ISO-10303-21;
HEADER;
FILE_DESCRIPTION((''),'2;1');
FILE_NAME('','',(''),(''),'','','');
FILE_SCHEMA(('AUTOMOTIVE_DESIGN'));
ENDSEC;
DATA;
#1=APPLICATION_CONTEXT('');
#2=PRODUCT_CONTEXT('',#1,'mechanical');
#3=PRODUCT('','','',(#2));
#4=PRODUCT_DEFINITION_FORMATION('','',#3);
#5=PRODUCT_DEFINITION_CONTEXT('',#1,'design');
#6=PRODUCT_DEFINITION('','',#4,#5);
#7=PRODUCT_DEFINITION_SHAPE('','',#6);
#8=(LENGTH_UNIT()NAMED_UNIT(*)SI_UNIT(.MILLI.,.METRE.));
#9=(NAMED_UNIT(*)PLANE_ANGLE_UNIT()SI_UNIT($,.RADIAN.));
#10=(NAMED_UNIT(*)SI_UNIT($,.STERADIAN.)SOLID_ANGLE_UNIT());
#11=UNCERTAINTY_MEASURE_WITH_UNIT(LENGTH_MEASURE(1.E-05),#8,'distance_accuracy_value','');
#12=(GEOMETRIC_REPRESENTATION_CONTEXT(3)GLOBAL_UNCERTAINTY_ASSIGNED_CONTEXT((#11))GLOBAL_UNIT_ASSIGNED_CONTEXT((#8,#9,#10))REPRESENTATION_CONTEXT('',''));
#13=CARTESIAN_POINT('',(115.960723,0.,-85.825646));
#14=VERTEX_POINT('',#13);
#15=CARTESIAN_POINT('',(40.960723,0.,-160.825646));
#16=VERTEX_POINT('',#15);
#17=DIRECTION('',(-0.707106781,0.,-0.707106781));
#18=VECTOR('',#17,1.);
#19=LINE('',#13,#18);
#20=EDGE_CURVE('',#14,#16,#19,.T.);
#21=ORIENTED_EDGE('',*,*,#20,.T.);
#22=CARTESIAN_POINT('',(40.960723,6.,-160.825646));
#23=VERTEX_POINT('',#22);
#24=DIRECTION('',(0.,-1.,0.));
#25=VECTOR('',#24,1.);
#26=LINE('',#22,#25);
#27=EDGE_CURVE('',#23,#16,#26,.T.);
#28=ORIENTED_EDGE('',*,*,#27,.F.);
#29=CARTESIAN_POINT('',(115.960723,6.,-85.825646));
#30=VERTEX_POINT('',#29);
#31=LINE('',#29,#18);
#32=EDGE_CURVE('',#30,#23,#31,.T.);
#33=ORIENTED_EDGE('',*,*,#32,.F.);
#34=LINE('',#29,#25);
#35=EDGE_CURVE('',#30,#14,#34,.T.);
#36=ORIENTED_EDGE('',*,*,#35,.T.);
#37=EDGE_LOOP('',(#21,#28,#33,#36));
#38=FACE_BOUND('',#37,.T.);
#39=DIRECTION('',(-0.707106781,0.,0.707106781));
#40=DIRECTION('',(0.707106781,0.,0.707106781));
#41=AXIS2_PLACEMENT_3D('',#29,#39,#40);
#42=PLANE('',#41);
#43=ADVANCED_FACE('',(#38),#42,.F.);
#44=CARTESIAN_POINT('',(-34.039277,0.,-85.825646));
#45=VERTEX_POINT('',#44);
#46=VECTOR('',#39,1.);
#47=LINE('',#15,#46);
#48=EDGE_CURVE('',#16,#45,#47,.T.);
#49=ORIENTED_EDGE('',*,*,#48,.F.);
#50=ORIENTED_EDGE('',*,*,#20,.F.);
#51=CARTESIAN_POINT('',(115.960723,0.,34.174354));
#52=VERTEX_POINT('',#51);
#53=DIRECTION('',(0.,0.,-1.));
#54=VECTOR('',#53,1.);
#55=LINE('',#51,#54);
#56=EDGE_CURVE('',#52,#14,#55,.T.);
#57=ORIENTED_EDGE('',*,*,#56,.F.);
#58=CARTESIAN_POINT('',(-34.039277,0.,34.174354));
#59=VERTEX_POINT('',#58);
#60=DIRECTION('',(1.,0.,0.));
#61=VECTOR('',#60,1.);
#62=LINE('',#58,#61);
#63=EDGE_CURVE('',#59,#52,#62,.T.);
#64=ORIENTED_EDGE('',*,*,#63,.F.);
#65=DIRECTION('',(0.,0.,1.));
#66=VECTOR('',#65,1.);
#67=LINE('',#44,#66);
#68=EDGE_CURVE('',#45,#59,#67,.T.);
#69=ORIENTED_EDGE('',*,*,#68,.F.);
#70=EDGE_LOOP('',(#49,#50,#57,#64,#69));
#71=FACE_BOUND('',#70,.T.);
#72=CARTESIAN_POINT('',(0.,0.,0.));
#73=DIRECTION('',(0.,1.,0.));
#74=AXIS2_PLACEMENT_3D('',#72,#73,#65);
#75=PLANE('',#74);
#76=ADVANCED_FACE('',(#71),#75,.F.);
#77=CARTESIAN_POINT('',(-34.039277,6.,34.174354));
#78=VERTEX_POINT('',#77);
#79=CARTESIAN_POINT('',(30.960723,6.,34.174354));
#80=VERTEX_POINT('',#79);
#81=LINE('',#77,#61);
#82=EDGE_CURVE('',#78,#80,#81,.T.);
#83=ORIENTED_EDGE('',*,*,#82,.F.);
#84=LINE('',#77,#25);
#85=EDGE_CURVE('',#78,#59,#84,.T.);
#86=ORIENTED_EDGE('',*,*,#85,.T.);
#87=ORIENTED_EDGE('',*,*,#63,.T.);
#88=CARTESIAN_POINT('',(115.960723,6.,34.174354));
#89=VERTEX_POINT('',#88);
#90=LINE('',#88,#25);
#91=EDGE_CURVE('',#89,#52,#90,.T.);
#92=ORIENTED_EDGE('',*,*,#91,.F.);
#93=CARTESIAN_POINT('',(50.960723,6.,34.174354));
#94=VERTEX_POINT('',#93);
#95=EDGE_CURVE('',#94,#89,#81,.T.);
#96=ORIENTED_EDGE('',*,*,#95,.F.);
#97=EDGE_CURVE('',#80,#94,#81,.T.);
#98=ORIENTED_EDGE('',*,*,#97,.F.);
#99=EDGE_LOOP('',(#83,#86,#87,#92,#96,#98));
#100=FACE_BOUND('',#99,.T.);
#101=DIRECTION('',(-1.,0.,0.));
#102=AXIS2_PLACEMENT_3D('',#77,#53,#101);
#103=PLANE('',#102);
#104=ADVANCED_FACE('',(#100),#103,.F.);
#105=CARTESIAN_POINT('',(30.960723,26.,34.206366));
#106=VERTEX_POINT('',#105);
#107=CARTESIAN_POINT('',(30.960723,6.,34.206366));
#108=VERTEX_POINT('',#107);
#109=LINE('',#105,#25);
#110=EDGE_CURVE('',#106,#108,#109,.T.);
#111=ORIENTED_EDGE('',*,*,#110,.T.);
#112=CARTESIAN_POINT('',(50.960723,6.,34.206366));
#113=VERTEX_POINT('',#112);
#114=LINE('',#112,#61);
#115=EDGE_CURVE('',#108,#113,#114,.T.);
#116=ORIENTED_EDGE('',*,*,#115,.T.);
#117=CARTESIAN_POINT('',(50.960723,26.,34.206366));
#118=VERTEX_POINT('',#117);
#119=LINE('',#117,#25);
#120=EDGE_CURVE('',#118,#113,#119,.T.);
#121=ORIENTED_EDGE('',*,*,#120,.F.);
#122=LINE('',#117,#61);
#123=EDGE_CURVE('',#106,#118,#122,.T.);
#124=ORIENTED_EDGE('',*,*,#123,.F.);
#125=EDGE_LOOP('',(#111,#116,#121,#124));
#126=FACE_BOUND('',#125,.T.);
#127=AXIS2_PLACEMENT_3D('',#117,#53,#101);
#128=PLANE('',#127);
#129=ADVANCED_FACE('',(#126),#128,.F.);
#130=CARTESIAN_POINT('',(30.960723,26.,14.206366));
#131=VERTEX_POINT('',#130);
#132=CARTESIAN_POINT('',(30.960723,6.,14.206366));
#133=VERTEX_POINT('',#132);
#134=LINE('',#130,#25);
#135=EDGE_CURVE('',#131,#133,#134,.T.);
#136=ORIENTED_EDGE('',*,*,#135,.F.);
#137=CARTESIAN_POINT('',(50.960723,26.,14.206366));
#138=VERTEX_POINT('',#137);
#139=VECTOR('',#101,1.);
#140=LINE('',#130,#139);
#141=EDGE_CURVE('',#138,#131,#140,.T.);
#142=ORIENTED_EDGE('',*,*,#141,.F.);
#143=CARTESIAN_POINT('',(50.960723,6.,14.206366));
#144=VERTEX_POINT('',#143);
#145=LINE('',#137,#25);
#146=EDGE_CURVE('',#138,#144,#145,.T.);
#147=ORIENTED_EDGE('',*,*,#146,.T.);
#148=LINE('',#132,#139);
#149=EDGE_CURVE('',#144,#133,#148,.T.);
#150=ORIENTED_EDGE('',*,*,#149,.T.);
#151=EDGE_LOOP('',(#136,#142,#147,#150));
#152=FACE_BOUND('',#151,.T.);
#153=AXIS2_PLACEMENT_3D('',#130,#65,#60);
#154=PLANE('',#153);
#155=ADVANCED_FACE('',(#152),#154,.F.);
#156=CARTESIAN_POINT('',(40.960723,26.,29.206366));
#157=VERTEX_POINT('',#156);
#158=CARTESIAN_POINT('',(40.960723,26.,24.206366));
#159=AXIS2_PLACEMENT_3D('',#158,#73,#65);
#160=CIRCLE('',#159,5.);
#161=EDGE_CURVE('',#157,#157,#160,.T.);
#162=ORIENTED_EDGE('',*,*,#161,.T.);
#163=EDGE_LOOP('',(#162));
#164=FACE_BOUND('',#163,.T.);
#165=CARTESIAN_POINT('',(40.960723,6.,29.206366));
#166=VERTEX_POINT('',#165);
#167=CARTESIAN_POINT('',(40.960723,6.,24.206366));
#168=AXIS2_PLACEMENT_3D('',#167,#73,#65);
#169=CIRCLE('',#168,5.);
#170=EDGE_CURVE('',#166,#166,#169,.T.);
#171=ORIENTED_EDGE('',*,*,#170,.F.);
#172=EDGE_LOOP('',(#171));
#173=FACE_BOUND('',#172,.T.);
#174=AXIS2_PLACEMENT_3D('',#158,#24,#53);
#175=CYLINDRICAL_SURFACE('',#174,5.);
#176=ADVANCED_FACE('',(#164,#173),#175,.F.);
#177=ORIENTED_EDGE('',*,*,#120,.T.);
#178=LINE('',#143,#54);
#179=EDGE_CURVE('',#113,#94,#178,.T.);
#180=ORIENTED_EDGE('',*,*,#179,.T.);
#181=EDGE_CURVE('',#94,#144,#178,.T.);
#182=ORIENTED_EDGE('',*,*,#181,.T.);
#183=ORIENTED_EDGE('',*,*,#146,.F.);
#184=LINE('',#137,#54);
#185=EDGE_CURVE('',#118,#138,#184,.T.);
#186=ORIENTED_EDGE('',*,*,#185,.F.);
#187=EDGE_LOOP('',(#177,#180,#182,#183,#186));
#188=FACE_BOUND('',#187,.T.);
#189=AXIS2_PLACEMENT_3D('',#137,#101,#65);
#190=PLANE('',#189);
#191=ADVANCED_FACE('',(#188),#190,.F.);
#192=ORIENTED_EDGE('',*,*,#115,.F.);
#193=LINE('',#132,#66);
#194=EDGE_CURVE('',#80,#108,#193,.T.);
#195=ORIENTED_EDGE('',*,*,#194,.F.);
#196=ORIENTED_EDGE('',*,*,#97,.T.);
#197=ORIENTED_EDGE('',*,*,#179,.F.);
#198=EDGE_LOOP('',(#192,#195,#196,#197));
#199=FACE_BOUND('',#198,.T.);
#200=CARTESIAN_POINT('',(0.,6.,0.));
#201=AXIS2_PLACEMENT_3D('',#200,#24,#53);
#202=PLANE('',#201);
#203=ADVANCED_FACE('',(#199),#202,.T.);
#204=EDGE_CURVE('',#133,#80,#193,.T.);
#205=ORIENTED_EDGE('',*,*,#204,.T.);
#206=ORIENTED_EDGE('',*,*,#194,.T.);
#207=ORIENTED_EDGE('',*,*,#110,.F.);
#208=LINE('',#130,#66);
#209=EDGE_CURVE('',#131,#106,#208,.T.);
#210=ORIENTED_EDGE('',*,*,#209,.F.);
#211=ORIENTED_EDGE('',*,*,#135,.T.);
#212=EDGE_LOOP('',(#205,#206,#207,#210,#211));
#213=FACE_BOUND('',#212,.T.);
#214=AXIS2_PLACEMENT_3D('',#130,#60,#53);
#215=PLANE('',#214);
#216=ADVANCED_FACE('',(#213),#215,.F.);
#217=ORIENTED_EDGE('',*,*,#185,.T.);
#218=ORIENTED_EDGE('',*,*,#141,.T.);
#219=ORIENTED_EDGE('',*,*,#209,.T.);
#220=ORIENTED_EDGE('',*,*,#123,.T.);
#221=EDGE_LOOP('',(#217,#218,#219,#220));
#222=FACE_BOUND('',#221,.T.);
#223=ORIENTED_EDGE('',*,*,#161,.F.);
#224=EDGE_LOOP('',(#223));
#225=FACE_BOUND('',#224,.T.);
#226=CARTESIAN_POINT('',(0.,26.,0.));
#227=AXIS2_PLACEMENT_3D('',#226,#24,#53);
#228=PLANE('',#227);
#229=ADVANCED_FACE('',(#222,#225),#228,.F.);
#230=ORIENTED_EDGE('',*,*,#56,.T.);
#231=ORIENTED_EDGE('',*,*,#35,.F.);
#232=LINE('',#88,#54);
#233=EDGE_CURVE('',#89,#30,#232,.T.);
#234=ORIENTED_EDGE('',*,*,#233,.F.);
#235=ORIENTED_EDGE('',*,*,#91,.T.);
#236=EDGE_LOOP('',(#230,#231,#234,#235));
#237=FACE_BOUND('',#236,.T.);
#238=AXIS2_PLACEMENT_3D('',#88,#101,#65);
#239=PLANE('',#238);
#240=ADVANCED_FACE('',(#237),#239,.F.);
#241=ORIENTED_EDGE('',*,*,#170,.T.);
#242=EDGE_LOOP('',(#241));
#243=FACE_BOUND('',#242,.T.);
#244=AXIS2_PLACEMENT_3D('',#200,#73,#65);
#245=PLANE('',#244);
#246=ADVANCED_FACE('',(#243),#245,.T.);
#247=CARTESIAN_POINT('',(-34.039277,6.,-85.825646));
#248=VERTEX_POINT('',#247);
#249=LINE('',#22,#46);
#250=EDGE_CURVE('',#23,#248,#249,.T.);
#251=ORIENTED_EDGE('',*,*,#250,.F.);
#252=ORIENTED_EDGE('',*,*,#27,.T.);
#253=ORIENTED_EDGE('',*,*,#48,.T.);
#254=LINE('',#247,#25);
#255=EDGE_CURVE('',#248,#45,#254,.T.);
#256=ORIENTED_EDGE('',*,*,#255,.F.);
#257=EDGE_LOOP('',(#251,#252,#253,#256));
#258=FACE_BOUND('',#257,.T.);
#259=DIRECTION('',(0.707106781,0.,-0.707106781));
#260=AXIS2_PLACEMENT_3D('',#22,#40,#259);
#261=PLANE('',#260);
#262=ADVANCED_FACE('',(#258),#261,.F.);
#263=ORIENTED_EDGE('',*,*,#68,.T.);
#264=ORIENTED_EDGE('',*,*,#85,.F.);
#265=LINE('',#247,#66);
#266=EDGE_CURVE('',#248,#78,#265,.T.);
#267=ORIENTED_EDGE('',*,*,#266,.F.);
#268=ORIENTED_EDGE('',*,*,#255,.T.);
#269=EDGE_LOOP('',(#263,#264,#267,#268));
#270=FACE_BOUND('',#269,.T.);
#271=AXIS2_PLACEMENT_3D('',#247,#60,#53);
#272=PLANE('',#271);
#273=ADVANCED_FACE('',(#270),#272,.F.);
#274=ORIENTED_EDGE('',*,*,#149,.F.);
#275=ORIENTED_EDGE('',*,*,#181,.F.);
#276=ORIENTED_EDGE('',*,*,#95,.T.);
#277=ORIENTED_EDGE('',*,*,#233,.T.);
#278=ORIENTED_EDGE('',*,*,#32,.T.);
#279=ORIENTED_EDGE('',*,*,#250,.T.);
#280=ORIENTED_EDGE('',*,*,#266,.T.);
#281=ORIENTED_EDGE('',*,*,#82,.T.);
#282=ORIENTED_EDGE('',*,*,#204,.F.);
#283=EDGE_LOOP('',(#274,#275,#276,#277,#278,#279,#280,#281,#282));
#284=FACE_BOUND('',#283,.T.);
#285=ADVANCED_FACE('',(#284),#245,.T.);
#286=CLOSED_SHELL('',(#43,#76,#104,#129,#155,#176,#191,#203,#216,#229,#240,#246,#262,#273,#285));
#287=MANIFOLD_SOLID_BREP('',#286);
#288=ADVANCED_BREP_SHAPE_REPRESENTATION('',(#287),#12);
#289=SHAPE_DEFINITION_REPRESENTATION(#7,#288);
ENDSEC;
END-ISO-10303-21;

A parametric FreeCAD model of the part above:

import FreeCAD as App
import Part
import Sketcher
from FreeCAD import Vector

doc = App.newDocument("Part")
body = doc.addObject("PartDesign::Body", "Body")

sketch1 = body.newObject("Sketcher::SketchObject", "Sketch")
sketch1.AttachmentSupport = (doc.getObject("XZ_Plane"), [""])
sketch1.MapMode = "FlatFace"
sketch1.addGeometry([
    Part.LineSegment(Vector(-34, 34, 0), Vector(116, 34, 0)),
    Part.LineSegment(Vector(116, 34, 0), Vector(116, -86, 0)),
    Part.LineSegment(Vector(116, -86, 0), Vector(41, -161, 0)),
    Part.LineSegment(Vector(41, -161, 0), Vector(-34, -86, 0)),
    Part.LineSegment(Vector(-34, -86, 0), Vector(-34, 34, 0)),
], False)
sketch1.addConstraint([
    Sketcher.Constraint("Coincident", 0, 2, 1, 1),
    Sketcher.Constraint("Coincident", 1, 2, 2, 1),
    Sketcher.Constraint("Coincident", 2, 2, 3, 1),
    Sketcher.Constraint("Coincident", 3, 2, 4, 1),
    Sketcher.Constraint("Coincident", 4, 2, 0, 1),
    Sketcher.Constraint("Horizontal", 0),
    Sketcher.Constraint("Vertical", 1),
    Sketcher.Constraint("Vertical", 4),
    Sketcher.Constraint("Perpendicular", 2, 3),
    Sketcher.Constraint("Horizontal", 1, 2, 3, 2),
    Sketcher.Constraint("Equal", 2, 3),
    Sketcher.Constraint("DistanceX", 0, 1, 0, 2, 150.0),
    Sketcher.Constraint("DistanceY", 1, 2, 1, 1, 120.0),
    Sketcher.Constraint("DistanceX", -1, 1, 0, 2, 115.960723),
    Sketcher.Constraint("DistanceY", -1, 1, 0, 2, 34.174354),
])
pad1 = body.newObject("PartDesign::Pad", "Pad")
pad1.Profile = sketch1
pad1.Length = 6
pad1.Reversed = True

sketch2 = body.newObject("Sketcher::SketchObject", "Sketch001")
sketch2.AttachmentSupport = (doc.getObject("XZ_Plane"), [""])
sketch2.MapMode = "FlatFace"
sketch2.AttachmentOffset = App.Placement(Vector(0, 0, -6), App.Rotation())
sketch2.addGeometry([
    Part.LineSegment(Vector(31, 14, 0), Vector(31, 34, 0)),
    Part.LineSegment(Vector(31, 34, 0), Vector(51, 34, 0)),
    Part.LineSegment(Vector(51, 34, 0), Vector(51, 14, 0)),
    Part.LineSegment(Vector(51, 14, 0), Vector(31, 14, 0)),
    Part.Circle(Vector(41, 24, 0), Vector(0, 0, 1), 5),
], False)
sketch2.addConstraint([
    Sketcher.Constraint("Coincident", 0, 2, 1, 1),
    Sketcher.Constraint("Coincident", 1, 2, 2, 1),
    Sketcher.Constraint("Coincident", 2, 2, 3, 1),
    Sketcher.Constraint("Coincident", 3, 2, 0, 1),
    Sketcher.Constraint("Vertical", 0),
    Sketcher.Constraint("Horizontal", 1),
    Sketcher.Constraint("Vertical", 2),
    Sketcher.Constraint("Horizontal", 3),
    Sketcher.Constraint("Equal", 3, 0),
    Sketcher.Constraint("Diameter", 4, 10.0),
    Sketcher.Constraint("DistanceX", 1, 1, 1, 2, 20.0),
    Sketcher.Constraint("DistanceX", 0, 2, 4, 3, 10.0),
    Sketcher.Constraint("DistanceY", 4, 3, 0, 2, 10.0),
    Sketcher.Constraint("DistanceX", -1, 1, 4, 3, 40.960723),
    Sketcher.Constraint("DistanceY", -1, 1, 4, 3, 24.206366),
])
pad2 = body.newObject("PartDesign::Pad", "Pad001")
pad2.Profile = sketch2
pad2.Length = 20
pad2.Reversed = True

doc.recompute()
